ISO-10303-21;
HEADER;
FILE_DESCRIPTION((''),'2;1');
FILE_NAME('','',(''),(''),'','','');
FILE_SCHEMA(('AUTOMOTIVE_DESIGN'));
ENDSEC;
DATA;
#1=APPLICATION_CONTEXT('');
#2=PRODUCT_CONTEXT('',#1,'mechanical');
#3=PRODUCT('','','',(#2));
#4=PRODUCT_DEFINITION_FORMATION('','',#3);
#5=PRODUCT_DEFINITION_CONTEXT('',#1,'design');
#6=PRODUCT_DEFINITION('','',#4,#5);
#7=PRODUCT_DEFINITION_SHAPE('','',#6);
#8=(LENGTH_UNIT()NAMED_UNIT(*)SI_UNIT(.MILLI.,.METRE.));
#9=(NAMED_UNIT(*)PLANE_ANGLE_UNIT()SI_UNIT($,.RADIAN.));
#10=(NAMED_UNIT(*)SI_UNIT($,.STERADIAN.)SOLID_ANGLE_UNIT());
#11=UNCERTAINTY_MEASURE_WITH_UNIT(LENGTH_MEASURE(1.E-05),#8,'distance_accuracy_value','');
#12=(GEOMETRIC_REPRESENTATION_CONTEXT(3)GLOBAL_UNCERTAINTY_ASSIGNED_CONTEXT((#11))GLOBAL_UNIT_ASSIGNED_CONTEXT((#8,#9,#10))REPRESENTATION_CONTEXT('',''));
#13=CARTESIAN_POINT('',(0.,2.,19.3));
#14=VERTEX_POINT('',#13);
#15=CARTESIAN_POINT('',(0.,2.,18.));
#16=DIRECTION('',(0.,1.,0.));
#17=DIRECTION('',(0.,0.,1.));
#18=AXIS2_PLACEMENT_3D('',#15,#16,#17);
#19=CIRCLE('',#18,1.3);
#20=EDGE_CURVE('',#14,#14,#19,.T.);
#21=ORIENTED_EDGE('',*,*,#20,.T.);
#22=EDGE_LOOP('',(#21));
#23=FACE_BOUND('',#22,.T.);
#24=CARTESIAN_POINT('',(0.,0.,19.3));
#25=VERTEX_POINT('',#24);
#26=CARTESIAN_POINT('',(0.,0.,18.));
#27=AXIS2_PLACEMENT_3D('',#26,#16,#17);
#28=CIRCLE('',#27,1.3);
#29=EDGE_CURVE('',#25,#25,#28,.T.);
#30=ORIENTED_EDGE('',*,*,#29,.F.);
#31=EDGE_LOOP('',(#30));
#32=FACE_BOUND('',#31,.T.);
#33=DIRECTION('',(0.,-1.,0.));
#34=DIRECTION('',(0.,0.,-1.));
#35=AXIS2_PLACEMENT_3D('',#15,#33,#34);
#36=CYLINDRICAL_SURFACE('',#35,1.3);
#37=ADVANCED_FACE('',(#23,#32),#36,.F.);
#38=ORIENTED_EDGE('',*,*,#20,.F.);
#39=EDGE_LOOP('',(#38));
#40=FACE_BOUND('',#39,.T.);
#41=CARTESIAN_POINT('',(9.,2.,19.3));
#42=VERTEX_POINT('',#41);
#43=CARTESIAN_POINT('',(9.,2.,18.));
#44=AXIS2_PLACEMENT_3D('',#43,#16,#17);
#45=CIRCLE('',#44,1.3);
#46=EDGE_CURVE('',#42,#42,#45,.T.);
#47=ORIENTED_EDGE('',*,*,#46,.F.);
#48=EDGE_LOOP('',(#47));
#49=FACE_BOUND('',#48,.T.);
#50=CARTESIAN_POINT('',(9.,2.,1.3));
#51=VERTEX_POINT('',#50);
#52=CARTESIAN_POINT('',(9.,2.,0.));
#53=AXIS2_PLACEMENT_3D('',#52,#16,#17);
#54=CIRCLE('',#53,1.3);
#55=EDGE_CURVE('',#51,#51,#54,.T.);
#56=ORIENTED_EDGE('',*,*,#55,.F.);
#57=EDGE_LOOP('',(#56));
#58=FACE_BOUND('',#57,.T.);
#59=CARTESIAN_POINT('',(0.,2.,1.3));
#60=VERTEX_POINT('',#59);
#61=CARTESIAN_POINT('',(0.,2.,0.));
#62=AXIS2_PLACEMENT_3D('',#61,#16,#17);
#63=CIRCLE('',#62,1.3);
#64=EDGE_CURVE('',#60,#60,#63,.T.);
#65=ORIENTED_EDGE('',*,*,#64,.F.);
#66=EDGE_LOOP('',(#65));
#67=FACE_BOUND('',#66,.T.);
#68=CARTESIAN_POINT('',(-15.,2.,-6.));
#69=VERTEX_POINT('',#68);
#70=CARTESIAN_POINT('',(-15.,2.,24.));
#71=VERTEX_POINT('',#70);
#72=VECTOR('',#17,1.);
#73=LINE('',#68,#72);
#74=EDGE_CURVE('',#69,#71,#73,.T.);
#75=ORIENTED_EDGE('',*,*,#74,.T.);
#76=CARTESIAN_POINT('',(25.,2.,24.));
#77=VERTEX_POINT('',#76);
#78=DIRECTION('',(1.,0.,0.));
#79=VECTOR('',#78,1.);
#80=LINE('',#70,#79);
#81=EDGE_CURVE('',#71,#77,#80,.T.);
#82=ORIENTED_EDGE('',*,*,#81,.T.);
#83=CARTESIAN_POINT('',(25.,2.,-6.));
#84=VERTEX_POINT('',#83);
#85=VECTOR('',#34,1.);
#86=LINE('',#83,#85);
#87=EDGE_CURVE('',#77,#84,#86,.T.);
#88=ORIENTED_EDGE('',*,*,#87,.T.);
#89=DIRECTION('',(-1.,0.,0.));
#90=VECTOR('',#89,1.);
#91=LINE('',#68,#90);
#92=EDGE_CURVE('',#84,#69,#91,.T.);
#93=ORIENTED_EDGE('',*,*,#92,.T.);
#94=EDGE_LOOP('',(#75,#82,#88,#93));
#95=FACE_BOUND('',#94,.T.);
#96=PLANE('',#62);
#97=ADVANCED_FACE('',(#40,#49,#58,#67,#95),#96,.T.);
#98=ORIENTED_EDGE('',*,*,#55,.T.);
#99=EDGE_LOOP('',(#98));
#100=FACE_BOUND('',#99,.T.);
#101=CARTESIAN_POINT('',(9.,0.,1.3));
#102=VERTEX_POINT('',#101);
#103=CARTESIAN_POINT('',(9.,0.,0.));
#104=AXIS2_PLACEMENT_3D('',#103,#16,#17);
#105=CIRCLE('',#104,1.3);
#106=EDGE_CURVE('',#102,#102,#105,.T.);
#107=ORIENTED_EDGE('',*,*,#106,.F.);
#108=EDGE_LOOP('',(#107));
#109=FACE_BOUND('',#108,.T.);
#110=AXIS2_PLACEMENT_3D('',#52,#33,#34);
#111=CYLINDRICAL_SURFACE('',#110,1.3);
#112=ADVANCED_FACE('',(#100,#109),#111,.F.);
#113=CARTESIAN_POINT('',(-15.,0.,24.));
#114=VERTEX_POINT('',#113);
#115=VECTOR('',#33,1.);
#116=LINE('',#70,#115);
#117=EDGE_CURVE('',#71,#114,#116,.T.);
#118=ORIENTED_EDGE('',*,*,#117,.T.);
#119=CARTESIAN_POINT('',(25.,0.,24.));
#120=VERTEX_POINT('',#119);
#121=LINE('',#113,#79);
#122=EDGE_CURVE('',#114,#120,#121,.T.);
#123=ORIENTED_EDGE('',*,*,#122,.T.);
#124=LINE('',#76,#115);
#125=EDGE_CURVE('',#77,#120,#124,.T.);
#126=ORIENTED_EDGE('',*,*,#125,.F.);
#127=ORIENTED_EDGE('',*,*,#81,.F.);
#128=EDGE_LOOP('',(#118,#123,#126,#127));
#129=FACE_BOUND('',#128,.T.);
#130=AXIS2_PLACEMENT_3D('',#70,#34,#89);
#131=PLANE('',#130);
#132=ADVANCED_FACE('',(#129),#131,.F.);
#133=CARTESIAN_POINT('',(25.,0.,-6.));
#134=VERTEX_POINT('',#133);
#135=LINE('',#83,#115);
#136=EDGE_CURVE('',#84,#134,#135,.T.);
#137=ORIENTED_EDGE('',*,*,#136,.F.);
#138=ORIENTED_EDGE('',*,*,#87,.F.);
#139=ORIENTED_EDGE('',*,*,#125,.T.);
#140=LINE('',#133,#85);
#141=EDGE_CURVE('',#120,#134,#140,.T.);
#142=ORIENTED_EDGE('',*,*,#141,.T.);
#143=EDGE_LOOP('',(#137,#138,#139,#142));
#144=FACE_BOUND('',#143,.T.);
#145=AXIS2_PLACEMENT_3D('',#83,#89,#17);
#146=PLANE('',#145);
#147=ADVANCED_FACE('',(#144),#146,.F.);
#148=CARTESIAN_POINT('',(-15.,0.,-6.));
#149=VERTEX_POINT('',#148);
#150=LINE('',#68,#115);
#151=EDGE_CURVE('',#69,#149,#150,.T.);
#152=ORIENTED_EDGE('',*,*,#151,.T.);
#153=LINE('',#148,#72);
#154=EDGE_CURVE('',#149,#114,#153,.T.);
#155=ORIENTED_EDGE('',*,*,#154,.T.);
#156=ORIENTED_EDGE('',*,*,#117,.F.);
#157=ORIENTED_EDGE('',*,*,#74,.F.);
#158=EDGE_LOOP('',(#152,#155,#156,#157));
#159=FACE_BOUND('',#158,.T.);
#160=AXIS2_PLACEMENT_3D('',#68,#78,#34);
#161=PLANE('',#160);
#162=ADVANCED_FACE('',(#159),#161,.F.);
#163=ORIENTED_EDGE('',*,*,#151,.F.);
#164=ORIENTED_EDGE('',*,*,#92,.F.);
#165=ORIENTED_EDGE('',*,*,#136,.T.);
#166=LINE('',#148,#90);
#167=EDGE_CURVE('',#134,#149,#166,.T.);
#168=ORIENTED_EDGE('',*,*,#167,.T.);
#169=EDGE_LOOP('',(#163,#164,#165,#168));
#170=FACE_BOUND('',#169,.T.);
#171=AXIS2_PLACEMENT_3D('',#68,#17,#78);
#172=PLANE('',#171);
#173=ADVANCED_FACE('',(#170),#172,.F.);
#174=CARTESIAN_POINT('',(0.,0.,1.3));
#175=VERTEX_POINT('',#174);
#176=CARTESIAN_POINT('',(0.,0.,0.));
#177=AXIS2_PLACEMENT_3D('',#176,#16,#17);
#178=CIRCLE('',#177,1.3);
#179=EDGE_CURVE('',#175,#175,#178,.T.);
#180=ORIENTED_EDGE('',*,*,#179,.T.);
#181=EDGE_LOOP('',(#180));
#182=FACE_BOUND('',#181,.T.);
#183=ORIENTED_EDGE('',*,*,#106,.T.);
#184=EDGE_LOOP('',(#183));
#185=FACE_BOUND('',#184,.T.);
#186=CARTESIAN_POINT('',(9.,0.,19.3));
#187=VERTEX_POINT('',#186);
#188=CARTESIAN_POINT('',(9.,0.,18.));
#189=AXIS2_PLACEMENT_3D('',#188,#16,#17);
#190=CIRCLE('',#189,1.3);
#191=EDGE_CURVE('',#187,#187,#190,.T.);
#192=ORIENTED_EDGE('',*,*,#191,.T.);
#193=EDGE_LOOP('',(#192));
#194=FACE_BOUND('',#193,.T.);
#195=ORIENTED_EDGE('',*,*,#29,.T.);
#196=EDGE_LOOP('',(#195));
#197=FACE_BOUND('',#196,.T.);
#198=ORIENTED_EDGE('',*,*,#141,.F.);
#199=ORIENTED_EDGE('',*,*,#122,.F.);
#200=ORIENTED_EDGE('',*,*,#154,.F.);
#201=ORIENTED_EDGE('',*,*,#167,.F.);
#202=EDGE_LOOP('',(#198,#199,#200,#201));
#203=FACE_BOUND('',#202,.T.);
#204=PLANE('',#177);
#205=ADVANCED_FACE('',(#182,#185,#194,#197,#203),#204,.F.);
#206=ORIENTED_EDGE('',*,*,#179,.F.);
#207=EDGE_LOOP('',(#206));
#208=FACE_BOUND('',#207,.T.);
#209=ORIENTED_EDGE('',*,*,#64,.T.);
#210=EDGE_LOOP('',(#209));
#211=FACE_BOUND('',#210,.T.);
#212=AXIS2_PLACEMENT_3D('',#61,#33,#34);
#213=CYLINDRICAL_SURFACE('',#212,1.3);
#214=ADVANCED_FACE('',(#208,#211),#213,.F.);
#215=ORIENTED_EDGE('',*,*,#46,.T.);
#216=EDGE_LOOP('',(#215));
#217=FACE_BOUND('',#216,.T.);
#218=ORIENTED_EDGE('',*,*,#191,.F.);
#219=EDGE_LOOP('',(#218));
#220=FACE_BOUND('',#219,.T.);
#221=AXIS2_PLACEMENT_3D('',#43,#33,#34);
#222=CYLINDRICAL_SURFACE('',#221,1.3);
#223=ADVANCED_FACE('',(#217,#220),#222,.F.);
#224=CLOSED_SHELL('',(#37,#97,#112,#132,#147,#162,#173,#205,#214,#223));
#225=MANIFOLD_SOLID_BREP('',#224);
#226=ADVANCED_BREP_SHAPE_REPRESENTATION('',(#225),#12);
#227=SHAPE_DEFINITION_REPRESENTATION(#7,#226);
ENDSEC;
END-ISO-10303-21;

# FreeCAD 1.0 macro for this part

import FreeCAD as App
import Part
import Sketcher


def add_polygon(sketch, points):
    """Adds a closed chain of lines whose ends are joined by coincident constraints."""
    first, n = sketch.GeometryCount, len(points)
    for a, b in zip(points, points[1:] + points[:1]):
        sketch.addGeometry(Part.LineSegment(App.Vector(*a, 0), App.Vector(*b, 0)), False)
    for i in range(n):
        sketch.addConstraint(Sketcher.Constraint("Coincident", first + i, 2, first + (i + 1) % n, 1))

doc = App.newDocument("Part")
body = doc.addObject("PartDesign::Body", "Body")

# Sketch on XZ plane
sketch1 = doc.addObject("Sketcher::SketchObject", "Sketch")
body.addObject(sketch1)
sketch1.AttachmentSupport = (doc.XZ_Plane, [""])
sketch1.MapMode = "FlatFace"
add_polygon(sketch1, [(-15, -6), (-15, 24), (25, 24), (25, -6)])  # lines 0-3
sketch1.addGeometry(Part.Circle(App.Vector(0, 18, 0), App.Vector(0, 0, 1), 1.3), False)  # 4
sketch1.addGeometry(Part.Circle(App.Vector(9, 18, 0), App.Vector(0, 0, 1), 1.3), False)  # 5
sketch1.addGeometry(Part.Circle(App.Vector(0, 0, 0), App.Vector(0, 0, 1), 1.3), False)  # 6
sketch1.addGeometry(Part.Circle(App.Vector(9, 0, 0), App.Vector(0, 0, 1), 1.3), False)  # 7
sketch1.addConstraint([
    Sketcher.Constraint("Vertical", 0),
    Sketcher.Constraint("Horizontal", 1),
    Sketcher.Constraint("Vertical", 2),
    Sketcher.Constraint("Horizontal", 3),
    Sketcher.Constraint("Coincident", 6, 3, -1, 1),
    Sketcher.Constraint("Equal", 4, 5),
    Sketcher.Constraint("Equal", 5, 6),
    Sketcher.Constraint("Equal", 6, 7),
    Sketcher.Constraint("PointOnObject", 4, 3, -2),
    Sketcher.Constraint("PointOnObject", 7, 3, -1),
    Sketcher.Constraint("Horizontal", 4, 3, 5, 3),
    Sketcher.Constraint("Vertical", 5, 3, 7, 3),
    Sketcher.Constraint("Diameter", 4, 2.6),
    Sketcher.Constraint("DistanceX", 1, 1, 1, 2, 40.0),
    Sketcher.Constraint("DistanceY", 0, 1, 0, 2, 30.0),
    Sketcher.Constraint("DistanceY", -1, 1, 4, 3, 18.0),
    Sketcher.Constraint("DistanceX", -1, 1, 5, 3, 9.0),
    Sketcher.Constraint("DistanceX", 0, 2, -1, 1, 15.0),
    Sketcher.Constraint("DistanceY", -1, 1, 0, 2, 24.0),
])
pad1 = doc.addObject("PartDesign::Pad", "Pad")
body.addObject(pad1)
pad1.Profile = sketch1
pad1.Length = 2
pad1.Reversed = True

doc.recompute()
